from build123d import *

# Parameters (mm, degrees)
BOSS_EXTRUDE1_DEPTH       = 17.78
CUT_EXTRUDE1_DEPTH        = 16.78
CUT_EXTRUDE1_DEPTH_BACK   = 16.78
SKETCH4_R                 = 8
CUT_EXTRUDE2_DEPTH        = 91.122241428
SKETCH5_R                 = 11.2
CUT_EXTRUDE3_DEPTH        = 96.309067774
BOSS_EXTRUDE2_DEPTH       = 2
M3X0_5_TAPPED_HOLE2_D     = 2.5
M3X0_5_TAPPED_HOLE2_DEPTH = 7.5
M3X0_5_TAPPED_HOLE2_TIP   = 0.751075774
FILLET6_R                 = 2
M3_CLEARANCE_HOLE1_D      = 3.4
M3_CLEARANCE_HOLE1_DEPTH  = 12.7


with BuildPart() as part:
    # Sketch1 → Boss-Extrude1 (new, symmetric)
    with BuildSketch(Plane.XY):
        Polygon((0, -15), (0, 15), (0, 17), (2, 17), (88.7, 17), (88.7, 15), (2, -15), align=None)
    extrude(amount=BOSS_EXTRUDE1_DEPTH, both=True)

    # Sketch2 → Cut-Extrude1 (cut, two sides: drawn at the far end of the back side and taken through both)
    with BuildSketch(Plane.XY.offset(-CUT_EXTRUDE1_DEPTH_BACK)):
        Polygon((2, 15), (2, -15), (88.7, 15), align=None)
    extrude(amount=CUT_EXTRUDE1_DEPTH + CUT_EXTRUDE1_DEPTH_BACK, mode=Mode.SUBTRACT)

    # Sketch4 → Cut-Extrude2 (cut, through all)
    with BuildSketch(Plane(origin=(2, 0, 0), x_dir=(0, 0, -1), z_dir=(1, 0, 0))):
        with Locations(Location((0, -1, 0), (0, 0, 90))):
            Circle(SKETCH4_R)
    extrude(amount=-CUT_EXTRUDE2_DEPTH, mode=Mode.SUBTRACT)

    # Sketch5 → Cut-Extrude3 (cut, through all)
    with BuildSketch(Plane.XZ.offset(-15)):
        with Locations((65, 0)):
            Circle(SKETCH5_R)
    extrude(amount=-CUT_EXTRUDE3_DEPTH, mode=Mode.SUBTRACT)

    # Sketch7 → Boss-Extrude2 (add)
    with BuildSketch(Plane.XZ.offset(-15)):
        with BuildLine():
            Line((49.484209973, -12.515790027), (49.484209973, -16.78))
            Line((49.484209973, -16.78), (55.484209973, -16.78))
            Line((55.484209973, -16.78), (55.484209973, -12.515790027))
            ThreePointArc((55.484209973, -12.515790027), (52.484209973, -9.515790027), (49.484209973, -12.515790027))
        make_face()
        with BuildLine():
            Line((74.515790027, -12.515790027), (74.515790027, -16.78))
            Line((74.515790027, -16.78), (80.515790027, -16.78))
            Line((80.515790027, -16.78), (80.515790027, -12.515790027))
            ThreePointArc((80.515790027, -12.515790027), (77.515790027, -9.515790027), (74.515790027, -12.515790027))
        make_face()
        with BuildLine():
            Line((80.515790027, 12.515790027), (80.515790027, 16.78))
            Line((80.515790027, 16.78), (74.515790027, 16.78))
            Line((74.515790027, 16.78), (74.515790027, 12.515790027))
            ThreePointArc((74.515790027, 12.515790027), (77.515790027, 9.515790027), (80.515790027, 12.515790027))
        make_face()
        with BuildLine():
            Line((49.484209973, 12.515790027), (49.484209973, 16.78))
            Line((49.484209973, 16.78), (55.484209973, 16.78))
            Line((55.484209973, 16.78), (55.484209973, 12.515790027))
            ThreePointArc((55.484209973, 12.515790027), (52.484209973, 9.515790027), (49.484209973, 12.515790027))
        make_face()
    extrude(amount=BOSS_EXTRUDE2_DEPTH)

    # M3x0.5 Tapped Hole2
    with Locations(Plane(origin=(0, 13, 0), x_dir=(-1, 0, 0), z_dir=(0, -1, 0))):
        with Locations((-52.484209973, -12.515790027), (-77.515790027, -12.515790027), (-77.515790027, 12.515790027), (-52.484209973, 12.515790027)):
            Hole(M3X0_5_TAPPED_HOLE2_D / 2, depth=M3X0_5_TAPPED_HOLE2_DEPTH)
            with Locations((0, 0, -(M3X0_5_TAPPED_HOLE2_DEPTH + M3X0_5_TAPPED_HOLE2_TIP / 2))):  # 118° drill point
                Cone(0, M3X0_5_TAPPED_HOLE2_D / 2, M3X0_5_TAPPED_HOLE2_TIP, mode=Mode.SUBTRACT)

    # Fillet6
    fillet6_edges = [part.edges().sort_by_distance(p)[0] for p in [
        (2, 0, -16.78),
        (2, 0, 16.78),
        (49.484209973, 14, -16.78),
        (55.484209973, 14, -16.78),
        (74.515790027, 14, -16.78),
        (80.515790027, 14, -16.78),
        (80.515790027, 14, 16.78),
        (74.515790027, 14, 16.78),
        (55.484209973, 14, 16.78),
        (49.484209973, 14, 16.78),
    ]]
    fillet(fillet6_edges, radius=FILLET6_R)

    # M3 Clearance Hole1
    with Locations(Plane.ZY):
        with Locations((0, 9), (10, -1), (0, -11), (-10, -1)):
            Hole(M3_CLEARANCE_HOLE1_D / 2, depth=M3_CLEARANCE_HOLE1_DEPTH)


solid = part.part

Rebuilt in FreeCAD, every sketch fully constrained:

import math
import FreeCAD as App
import Part
import Sketcher


def edges_at(feature, points):
    """Names of the edges that pass closest to the given points."""
    edges = feature.Shape.Edges
    near = lambda p: min(range(len(edges)), key=lambda i: edges[i].distToShape(Part.Vertex(*p))[0])
    return sorted({f"Edge{near(p) + 1}" for p in points})

doc = App.newDocument("Part")
body = doc.addObject("PartDesign::Body", "Body")

sketch1 = doc.addObject("Sketcher::SketchObject", "Sketch")
body.addObject(sketch1)
sketch1.AttachmentSupport = (doc.XY_Plane, [""])
sketch1.MapMode = "FlatFace"
sketch1.addGeometry([
    Part.LineSegment(App.Vector(0, 17, 0), App.Vector(0, -15, 0)),
    Part.LineSegment(App.Vector(0, -15, 0), App.Vector(2, -15, 0)),
    Part.LineSegment(App.Vector(2, -15, 0), App.Vector(88.7, 15, 0)),
    Part.LineSegment(App.Vector(88.7, 15, 0), App.Vector(88.7, 17, 0)),
    Part.LineSegment(App.Vector(88.7, 17, 0), App.Vector(0, 17, 0)),
], False)
sketch1.addConstraint([
    Sketcher.Constraint("Coincident", 0, 2, 1, 1),
    Sketcher.Constraint("Coincident", 1, 2, 2, 1),
    Sketcher.Constraint("Coincident", 2, 2, 3, 1),
    Sketcher.Constraint("Coincident", 3, 2, 4, 1),
    Sketcher.Constraint("Coincident", 4, 2, 0, 1),
    Sketcher.Constraint("Vertical", 0),
    Sketcher.Constraint("Horizontal", 1),
    Sketcher.Constraint("Vertical", 3),
    Sketcher.Constraint("Horizontal", 4),
    Sketcher.Constraint("PointOnObject", 0, 2, -2),
    Sketcher.Constraint("Equal", 1, 3),
    Sketcher.Constraint("DistanceX", 1, 1, 1, 2, 2.0),
    Sketcher.Constraint("DistanceY", 0, 2, 0, 1, 32.0),
    Sketcher.Constraint("DistanceX", 4, 2, 4, 1, 88.7),
    Sketcher.Constraint("DistanceY", 0, 2, -1, 1, 15.0),
])
pad1 = doc.addObject("PartDesign::Pad", "Pad")
body.addObject(pad1)
pad1.Profile = sketch1
pad1.Length = 35.56
pad1.Midplane = True

sketch2 = doc.addObject("Sketcher::SketchObject", "Sketch001")
body.addObject(sketch2)
sketch2.AttachmentSupport = (doc.XY_Plane, [""])
sketch2.MapMode = "FlatFace"
sketch2.addGeometry([
    Part.LineSegment(App.Vector(2, 15, 0), App.Vector(2, -15, 0)),
    Part.LineSegment(App.Vector(2, -15, 0), App.Vector(89, 15, 0)),
    Part.LineSegment(App.Vector(89, 15, 0), App.Vector(2, 15, 0)),
], False)
sketch2.addConstraint([
    Sketcher.Constraint("Coincident", 0, 2, 1, 1),
    Sketcher.Constraint("Coincident", 1, 2, 2, 1),
    Sketcher.Constraint("Coincident", 2, 2, 0, 1),
    Sketcher.Constraint("Vertical", 0),
    Sketcher.Constraint("Horizontal", 2),
    Sketcher.Constraint("DistanceY", 0, 2, 0, 1, 30.0),
    Sketcher.Constraint("DistanceX", 2, 2, 2, 1, 86.7),
    Sketcher.Constraint("DistanceX", -1, 1, 0, 2, 2.0),
    Sketcher.Constraint("DistanceY", 0, 2, -1, 1, 15.0),
])
pocket1 = doc.addObject("PartDesign::Pocket", "Pocket")
body.addObject(pocket1)
pocket1.Profile = sketch2
pocket1.Type = "TwoLengths"
pocket1.Length = 16.78
pocket1.Length2 = 16.78
pocket1.Reversed = True

sketch3 = doc.addObject("Sketcher::SketchObject", "Sketch002")
body.addObject(sketch3)
sketch3.AttachmentSupport = (doc.YZ_Plane, [""])
sketch3.MapMode = "FlatFace"
sketch3.AttachmentOffset = App.Placement(App.Vector(0, 0, 2), App.Rotation())
sketch3.addGeometry(Part.Circle(App.Vector(-1, 0, 0), App.Vector(0, 0, 1), 8), False)
sketch3.addConstraint([
    Sketcher.Constraint("PointOnObject", 0, 3, -1),
    Sketcher.Constraint("Diameter", 0, 16.0),
    Sketcher.Constraint("DistanceX", 0, 3, -1, 1, 1.0),
])
pocket2 = doc.addObject("PartDesign::Pocket", "Pocket001")
body.addObject(pocket2)
pocket2.Profile = sketch3
pocket2.Type = "ThroughAll"

sketch4 = doc.addObject("Sketcher::SketchObject", "Sketch003")
body.addObject(sketch4)
sketch4.AttachmentSupport = (doc.XZ_Plane, [""])
sketch4.MapMode = "FlatFace"
sketch4.AttachmentOffset = App.Placement(App.Vector(0, 0, -15), App.Rotation())
sketch4.addGeometry(Part.Circle(App.Vector(65, 0, 0), App.Vector(0, 0, 1), 11), False)
sketch4.addConstraint([
    Sketcher.Constraint("PointOnObject", 0, 3, -1),
    Sketcher.Constraint("Diameter", 0, 22.4),
    Sketcher.Constraint("DistanceX", -1, 1, 0, 3, 65.0),
])
pocket3 = doc.addObject("PartDesign::Pocket", "Pocket002")
body.addObject(pocket3)
pocket3.Profile = sketch4
pocket3.Type = "ThroughAll"

sketch5 = doc.addObject("Sketcher::SketchObject", "Sketch004")
body.addObject(sketch5)
sketch5.AttachmentSupport = (doc.XZ_Plane, [""])
sketch5.MapMode = "FlatFace"
sketch5.AttachmentOffset = App.Placement(App.Vector(0, 0, -15), App.Rotation())
sketch5.addGeometry([
    Part.LineSegment(App.Vector(49.5, -12.5, 0), App.Vector(49.5, -16.8, 0)),
    Part.LineSegment(App.Vector(49.5, -16.8, 0), App.Vector(55.5, -16.8, 0)),
    Part.LineSegment(App.Vector(55.5, -16.8, 0), App.Vector(55.5, -12.5, 0)),
    Part.ArcOfCircle(Part.Circle(App.Vector(52.5, -12.5, 0), App.Vector(0, 0, 1), 3), math.radians(0), math.radians(180)),
    Part.LineSegment(App.Vector(74.5, -12.5, 0), App.Vector(74.5, -16.8, 0)),
    Part.LineSegment(App.Vector(74.5, -16.8, 0), App.Vector(80.5, -16.8, 0)),
    Part.LineSegment(App.Vector(80.5, -16.8, 0), App.Vector(80.5, -12.5, 0)),
    Part.ArcOfCircle(Part.Circle(App.Vector(77.5, -12.5, 0), App.Vector(0, 0, 1), 3), math.radians(0), math.radians(180)),
    Part.LineSegment(App.Vector(80.5, 12.5, 0), App.Vector(80.5, 16.8, 0)),
    Part.LineSegment(App.Vector(80.5, 16.8, 0), App.Vector(74.5, 16.8, 0)),
    Part.LineSegment(App.Vector(74.5, 16.8, 0), App.Vector(74.5, 12.5, 0)),
    Part.ArcOfCircle(Part.Circle(App.Vector(77.5, 12.5, 0), App.Vector(0, 0, 1), 3), math.radians(180), math.radians(360)),
    Part.LineSegment(App.Vector(49.5, 16.8, 0), App.Vector(49.5, 12.5, 0)),
    Part.ArcOfCircle(Part.Circle(App.Vector(52.5, 12.5, 0), App.Vector(0, 0, 1), 3), math.radians(180), math.radians(360)),
    Part.LineSegment(App.Vector(55.5, 12.5, 0), App.Vector(55.5, 16.8, 0)),
    Part.LineSegment(App.Vector(55.5, 16.8, 0), App.Vector(49.5, 16.8, 0)),
], False)
sketch5.addConstraint([
    Sketcher.Constraint("Coincident", 0, 2, 1, 1),
    Sketcher.Constraint("Coincident", 1, 2, 2, 1),
    Sketcher.Constraint("Tangent", 2, 2, 3, 1),
    Sketcher.Constraint("Tangent", 3, 2, 0, 1),
    Sketcher.Constraint("Coincident", 4, 2, 5, 1),
    Sketcher.Constraint("Coincident", 5, 2, 6, 1),
    Sketcher.Constraint("Tangent", 6, 2, 7, 1),
    Sketcher.Constraint("Tangent", 7, 2, 4, 1),
    Sketcher.Constraint("Coincident", 8, 2, 9, 1),
    Sketcher.Constraint("Coincident", 9, 2, 10, 1),
    Sketcher.Constraint("Tangent", 10, 2, 11, 1),
    Sketcher.Constraint("Tangent", 11, 2, 8, 1),
    Sketcher.Constraint("Tangent", 12, 2, 13, 1),
    Sketcher.Constraint("Tangent", 13, 2, 14, 1),
    Sketcher.Constraint("Coincident", 14, 2, 15, 1),
    Sketcher.Constraint("Coincident", 15, 2, 12, 1),
    Sketcher.Constraint("Vertical", 0),
    Sketcher.Constraint("Horizontal", 1),
    Sketcher.Constraint("Vertical", 2),
    Sketcher.Constraint("Vertical", 4),
    Sketcher.Constraint("Horizontal", 5),
    Sketcher.Constraint("Vertical", 6),
    Sketcher.Constraint("Vertical", 8),
    Sketcher.Constraint("Horizontal", 9),
    Sketcher.Constraint("Vertical", 10),
    Sketcher.Constraint("Vertical", 12),
    Sketcher.Constraint("Vertical", 14),
    Sketcher.Constraint("Horizontal", 15),
    Sketcher.Constraint("Equal", 3, 7),
    Sketcher.Constraint("Equal", 7, 11),
    Sketcher.Constraint("Equal", 11, 13),
    Sketcher.Constraint("Symmetric", 7, 3, 11, 3, -1),
    Sketcher.Constraint("Symmetric", 3, 3, 13, 3, -1),
    Sketcher.Constraint("Horizontal", 3, 3, 7, 3),
    Sketcher.Constraint("Horizontal", 1, 2, 4, 2),
    Sketcher.Constraint("Horizontal", 9, 2, 14, 2),
    Sketcher.Constraint("Equal", 6, 8),
    Sketcher.Constraint("Radius", 3, 3.0),
    Sketcher.Constraint("DistanceY", 0, 2, -1, 1, 16.78),
    Sketcher.Constraint("DistanceY", 0, 2, 0, 1, 4.26421),
    Sketcher.Constraint("DistanceX", -1, 1, 3, 3, 52.48421),
    Sketcher.Constraint("DistanceX", -1, 1, 7, 3, 77.51579),
])
pad2 = doc.addObject("PartDesign::Pad", "Pad001")
body.addObject(pad2)
pad2.Profile = sketch5
pad2.Length = 2

sketch6 = doc.addObject("Sketcher::SketchObject", "Sketch005")
body.addObject(sketch6)
sketch6.AttachmentSupport = (doc.XZ_Plane, [""])
sketch6.MapMode = "FlatFace"
sketch6.AttachmentOffset = App.Placement(App.Vector(0, 0, -13), App.Rotation())
sketch6.addGeometry([
    Part.Circle(App.Vector(52.5, 12.5, 0), App.Vector(0, 0, 1), 1.2),
    Part.Circle(App.Vector(77.5, 12.5, 0), App.Vector(0, 0, 1), 1.2),
    Part.Circle(App.Vector(77.5, -12.5, 0), App.Vector(0, 0, 1), 1.2),
    Part.Circle(App.Vector(52.5, -12.5, 0), App.Vector(0, 0, 1), 1.2),
], False)
sketch6.addConstraint([
    Sketcher.Constraint("Equal", 0, 1),
    Sketcher.Constraint("Equal", 1, 2),
    Sketcher.Constraint("Equal", 2, 3),
    Sketcher.Constraint("Symmetric", 1, 3, 2, 3, -1),
    Sketcher.Constraint("Symmetric", 0, 3, 3, 3, -1),
    Sketcher.Constraint("Horizontal", 0, 3, 1, 3),
    Sketcher.Constraint("Diameter", 0, 2.5),
    Sketcher.Constraint("DistanceX", -1, 1, 0, 3, 52.48421),
    Sketcher.Constraint("DistanceY", -1, 1, 0, 3, 12.51579),
    Sketcher.Constraint("DistanceX", -1, 1, 1, 3, 77.51579),
])
doc.recompute()
hole = doc.addObject("PartDesign::Hole", "Hole")
body.addObject(hole)
hole.Profile = sketch6
hole.ThreadType = "None"
hole.Diameter = 2.5
hole.DepthType = "Dimension"
hole.Depth = 7.5
hole.DrillPoint = "Angled"
hole.DrillPointAngle = 118
doc.recompute()

fillet = doc.addObject("PartDesign::Fillet", "Fillet")
body.addObject(fillet)
fillet.Base = (hole, edges_at(hole, [
    (2, 0, -16.78),
    (2, 0, 16.78),
    (49.484, 14, -16.78),
    (55.484, 14, -16.78),
    (74.516, 14, -16.78),
    (80.516, 14, -16.78),
    (80.516, 14, 16.78),
    (74.516, 14, 16.78),
    (55.484, 14, 16.78),
    (49.484, 14, 16.78),
]))
fillet.Radius = 2

sketch7 = doc.addObject("Sketcher::SketchObject", "Sketch006")
body.addObject(sketch7)
sketch7.AttachmentSupport = (doc.YZ_Plane, [""])
sketch7.MapMode = "FlatFace"
sketch7.addGeometry([
    Part.Circle(App.Vector(9, 0, 0), App.Vector(0, 0, 1), 1.7),
    Part.Circle(App.Vector(-1, 10, 0), App.Vector(0, 0, 1), 1.7),
    Part.Circle(App.Vector(-11, 0, 0), App.Vector(0, 0, 1), 1.7),
    Part.Circle(App.Vector(-1, -10, 0), App.Vector(0, 0, 1), 1.7),
], False)
sketch7.addConstraint([
    Sketcher.Constraint("Equal", 0, 1),
    Sketcher.Constraint("Equal", 1, 2),
    Sketcher.Constraint("Equal", 2, 3),
    Sketcher.Constraint("Symmetric", 1, 3, 3, 3, -1),
    Sketcher.Constraint("PointOnObject", 0, 3, -1),
    Sketcher.Constraint("PointOnObject", 2, 3, -1),
    Sketcher.Constraint("Diameter", 0, 3.4),
    Sketcher.Constraint("DistanceX", -1, 1, 0, 3, 9.0),
    Sketcher.Constraint("DistanceX", 1, 3, -1, 1, 1.0),
    Sketcher.Constraint("DistanceY", -1, 1, 1, 3, 10.0),
    Sketcher.Constraint("DistanceX", 2, 3, -1, 1, 11.0),
])
doc.recompute()
hole2 = doc.addObject("PartDesign::Hole", "Hole001")
body.addObject(hole2)
hole2.Profile = sketch7
hole2.ThreadType = "None"
hole2.Diameter = 3.4
hole2.DepthType = "Dimension"
hole2.Depth = 12.7
hole2.DrillPoint = "Flat"
hole2.Reversed = True

doc.recompute()
